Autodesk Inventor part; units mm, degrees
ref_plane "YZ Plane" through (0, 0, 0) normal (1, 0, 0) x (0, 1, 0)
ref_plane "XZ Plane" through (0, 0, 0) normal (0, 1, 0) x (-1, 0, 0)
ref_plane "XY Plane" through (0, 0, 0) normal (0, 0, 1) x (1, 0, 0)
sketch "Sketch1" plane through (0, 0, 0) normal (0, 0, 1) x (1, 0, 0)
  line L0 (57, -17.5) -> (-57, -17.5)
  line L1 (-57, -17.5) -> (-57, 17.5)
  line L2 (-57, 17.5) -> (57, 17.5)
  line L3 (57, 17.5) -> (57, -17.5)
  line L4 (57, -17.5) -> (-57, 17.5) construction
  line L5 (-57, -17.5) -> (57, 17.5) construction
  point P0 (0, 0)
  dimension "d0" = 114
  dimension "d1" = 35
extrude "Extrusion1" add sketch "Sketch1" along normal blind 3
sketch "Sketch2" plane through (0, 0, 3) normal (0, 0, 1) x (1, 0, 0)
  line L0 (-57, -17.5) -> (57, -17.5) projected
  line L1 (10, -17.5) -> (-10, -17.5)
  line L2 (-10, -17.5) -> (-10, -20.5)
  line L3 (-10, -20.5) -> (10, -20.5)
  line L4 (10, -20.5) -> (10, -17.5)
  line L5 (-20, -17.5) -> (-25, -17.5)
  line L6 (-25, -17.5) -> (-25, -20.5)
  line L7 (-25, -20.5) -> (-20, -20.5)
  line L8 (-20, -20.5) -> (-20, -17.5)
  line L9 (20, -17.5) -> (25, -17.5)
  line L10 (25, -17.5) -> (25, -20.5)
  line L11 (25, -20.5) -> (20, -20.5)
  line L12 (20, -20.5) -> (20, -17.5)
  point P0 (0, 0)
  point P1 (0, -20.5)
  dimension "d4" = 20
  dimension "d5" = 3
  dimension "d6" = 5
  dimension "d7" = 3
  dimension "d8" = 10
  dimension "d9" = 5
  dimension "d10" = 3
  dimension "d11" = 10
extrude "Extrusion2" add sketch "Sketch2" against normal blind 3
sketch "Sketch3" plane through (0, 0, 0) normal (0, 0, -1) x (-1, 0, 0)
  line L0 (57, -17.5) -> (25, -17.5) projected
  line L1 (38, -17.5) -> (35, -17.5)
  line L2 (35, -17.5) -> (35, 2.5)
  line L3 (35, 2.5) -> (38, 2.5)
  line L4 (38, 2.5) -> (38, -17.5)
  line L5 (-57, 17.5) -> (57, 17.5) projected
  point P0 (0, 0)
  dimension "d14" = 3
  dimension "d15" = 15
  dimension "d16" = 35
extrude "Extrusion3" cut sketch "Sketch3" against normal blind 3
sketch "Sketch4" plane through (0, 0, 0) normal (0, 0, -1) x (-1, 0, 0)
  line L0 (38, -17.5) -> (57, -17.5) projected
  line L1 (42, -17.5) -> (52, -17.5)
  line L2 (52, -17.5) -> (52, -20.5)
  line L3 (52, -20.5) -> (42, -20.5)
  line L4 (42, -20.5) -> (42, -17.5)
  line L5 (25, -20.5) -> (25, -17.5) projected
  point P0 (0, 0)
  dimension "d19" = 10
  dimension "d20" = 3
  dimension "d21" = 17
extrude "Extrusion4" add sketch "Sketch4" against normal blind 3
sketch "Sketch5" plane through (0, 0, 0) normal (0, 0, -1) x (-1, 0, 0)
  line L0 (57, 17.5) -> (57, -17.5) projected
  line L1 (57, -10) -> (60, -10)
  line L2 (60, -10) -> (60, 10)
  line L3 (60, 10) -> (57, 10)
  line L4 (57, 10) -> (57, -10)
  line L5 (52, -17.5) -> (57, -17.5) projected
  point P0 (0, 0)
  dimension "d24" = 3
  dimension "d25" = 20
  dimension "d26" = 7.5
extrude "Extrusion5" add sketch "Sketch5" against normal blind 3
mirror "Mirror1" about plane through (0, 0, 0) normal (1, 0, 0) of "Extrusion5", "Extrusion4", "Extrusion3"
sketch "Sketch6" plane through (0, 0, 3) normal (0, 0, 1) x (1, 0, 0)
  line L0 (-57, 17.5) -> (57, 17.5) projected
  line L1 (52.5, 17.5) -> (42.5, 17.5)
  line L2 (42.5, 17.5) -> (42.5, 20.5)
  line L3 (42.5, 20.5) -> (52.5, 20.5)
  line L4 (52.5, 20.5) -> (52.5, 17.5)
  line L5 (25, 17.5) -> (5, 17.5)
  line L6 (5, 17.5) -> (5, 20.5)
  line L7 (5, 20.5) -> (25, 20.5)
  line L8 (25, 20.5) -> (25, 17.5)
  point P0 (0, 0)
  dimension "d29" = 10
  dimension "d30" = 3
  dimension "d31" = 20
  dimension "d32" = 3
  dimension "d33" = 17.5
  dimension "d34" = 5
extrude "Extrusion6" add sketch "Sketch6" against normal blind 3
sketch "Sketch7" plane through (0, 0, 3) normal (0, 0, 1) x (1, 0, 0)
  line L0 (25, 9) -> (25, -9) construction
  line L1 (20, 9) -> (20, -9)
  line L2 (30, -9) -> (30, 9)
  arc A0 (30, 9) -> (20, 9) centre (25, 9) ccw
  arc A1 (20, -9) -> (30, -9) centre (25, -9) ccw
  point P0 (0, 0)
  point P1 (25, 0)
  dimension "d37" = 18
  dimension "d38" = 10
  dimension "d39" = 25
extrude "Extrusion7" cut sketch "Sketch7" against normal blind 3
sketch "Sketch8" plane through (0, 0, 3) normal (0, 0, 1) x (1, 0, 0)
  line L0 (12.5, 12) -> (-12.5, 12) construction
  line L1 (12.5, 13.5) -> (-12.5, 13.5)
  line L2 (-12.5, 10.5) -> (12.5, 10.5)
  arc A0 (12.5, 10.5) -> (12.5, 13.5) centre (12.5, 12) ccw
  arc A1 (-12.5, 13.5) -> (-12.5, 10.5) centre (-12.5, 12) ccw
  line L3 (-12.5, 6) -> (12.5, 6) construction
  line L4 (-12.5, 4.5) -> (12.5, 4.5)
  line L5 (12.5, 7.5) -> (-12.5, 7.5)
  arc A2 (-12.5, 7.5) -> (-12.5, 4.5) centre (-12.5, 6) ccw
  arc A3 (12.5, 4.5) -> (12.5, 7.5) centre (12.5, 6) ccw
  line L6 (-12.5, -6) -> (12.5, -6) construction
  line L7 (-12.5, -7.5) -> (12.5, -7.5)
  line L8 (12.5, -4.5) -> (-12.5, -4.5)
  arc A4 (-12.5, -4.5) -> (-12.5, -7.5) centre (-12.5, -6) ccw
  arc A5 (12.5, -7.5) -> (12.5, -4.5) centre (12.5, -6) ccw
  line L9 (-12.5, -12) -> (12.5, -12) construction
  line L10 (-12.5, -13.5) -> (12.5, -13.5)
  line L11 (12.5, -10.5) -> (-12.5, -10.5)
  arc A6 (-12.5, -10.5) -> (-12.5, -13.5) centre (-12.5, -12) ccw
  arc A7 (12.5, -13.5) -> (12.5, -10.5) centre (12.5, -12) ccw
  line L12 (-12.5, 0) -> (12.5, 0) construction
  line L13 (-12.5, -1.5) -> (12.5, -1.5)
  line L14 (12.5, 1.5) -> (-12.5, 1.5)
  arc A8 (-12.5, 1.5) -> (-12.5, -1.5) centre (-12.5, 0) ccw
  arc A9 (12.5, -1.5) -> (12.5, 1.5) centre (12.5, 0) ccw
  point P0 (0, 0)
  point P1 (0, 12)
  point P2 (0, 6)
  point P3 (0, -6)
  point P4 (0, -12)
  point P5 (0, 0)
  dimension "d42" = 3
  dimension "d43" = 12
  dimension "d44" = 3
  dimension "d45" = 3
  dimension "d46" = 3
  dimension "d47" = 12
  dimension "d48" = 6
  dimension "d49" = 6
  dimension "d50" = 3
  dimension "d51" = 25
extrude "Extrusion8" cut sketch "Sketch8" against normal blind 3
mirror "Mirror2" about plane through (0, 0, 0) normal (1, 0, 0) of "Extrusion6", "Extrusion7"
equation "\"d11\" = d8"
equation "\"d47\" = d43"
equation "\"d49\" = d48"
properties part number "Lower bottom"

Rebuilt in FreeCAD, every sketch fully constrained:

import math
import FreeCAD as App
import Part
import Sketcher
from FreeCAD import Vector

doc = App.newDocument("Part")
body = doc.addObject("PartDesign::Body", "Body")

# Sketch on XY plane
sketch1 = body.newObject("Sketcher::SketchObject", "Sketch")
sketch1.AttachmentSupport = (doc.getObject("XY_Plane"), [""])
sketch1.MapMode = "FlatFace"
sketch1.addGeometry([
    Part.LineSegment(Vector(-57, -18, 0), Vector(57, -18, 0)),
    Part.LineSegment(Vector(57, -18, 0), Vector(57, 18, 0)),
    Part.LineSegment(Vector(57, 18, 0), Vector(-57, 18, 0)),
    Part.LineSegment(Vector(-57, 18, 0), Vector(-57, -18, 0)),
], False)
sketch1.addConstraint([
    Sketcher.Constraint("Coincident", 0, 2, 1, 1),
    Sketcher.Constraint("Coincident", 1, 2, 2, 1),
    Sketcher.Constraint("Coincident", 2, 2, 3, 1),
    Sketcher.Constraint("Coincident", 3, 2, 0, 1),
    Sketcher.Constraint("Horizontal", 0),
    Sketcher.Constraint("Vertical", 1),
    Sketcher.Constraint("Horizontal", 2),
    Sketcher.Constraint("Vertical", 3),
    Sketcher.Constraint("Symmetric", 0, 2, 2, 2, -1, 1),
    Sketcher.Constraint("DistanceX", 0, 1, 0, 2, 114.0),
    Sketcher.Constraint("DistanceY", 1, 1, 1, 2, 35.0),
])
pad1 = body.newObject("PartDesign::Pad", "Pad")
pad1.Profile = sketch1
pad1.Length = 3

# Sketch on XY plane
sketch2 = body.newObject("Sketcher::SketchObject", "Sketch001")
sketch2.AttachmentSupport = (doc.getObject("XY_Plane"), [""])
sketch2.MapMode = "FlatFace"
sketch2.AttachmentOffset = App.Placement(Vector(0, 0, 3), App.Rotation())
sketch2.addGeometry([
    Part.LineSegment(Vector(25, -17.5, 0), Vector(20, -17.5, 0)),  # 0
    Part.LineSegment(Vector(20, -17.5, 0), Vector(20, -20.5, 0)),  # 1
    Part.LineSegment(Vector(20, -20.5, 0), Vector(25, -20.5, 0)),  # 2
    Part.LineSegment(Vector(25, -20.5, 0), Vector(25, -17.5, 0)),  # 3
    Part.LineSegment(Vector(10, -17.5, 0), Vector(-10, -17.5, 0)),  # 4
    Part.LineSegment(Vector(-10, -17.5, 0), Vector(-10, -20.5, 0)),  # 5
    Part.LineSegment(Vector(-10, -20.5, 0), Vector(10, -20.5, 0)),  # 6
    Part.LineSegment(Vector(10, -20.5, 0), Vector(10, -17.5, 0)),  # 7
    Part.LineSegment(Vector(-20, -17.5, 0), Vector(-25, -17.5, 0)),  # 8
    Part.LineSegment(Vector(-25, -17.5, 0), Vector(-25, -20.5, 0)),  # 9
    Part.LineSegment(Vector(-25, -20.5, 0), Vector(-20, -20.5, 0)),  # 10
    Part.LineSegment(Vector(-20, -20.5, 0), Vector(-20, -17.5, 0)),  # 11
], False)
sketch2.addConstraint([
    Sketcher.Constraint("Coincident", 0, 2, 1, 1),
    Sketcher.Constraint("Coincident", 1, 2, 2, 1),
    Sketcher.Constraint("Coincident", 2, 2, 3, 1),
    Sketcher.Constraint("Coincident", 3, 2, 0, 1),
    Sketcher.Constraint("Coincident", 4, 2, 5, 1),
    Sketcher.Constraint("Coincident", 5, 2, 6, 1),
    Sketcher.Constraint("Coincident", 6, 2, 7, 1),
    Sketcher.Constraint("Coincident", 7, 2, 4, 1),
    Sketcher.Constraint("Coincident", 8, 2, 9, 1),
    Sketcher.Constraint("Coincident", 9, 2, 10, 1),
    Sketcher.Constraint("Coincident", 10, 2, 11, 1),
    Sketcher.Constraint("Coincident", 11, 2, 8, 1),
    Sketcher.Constraint("Horizontal", 0),
    Sketcher.Constraint("Vertical", 1),
    Sketcher.Constraint("Horizontal", 2),
    Sketcher.Constraint("Vertical", 3),
    Sketcher.Constraint("Horizontal", 4),
    Sketcher.Constraint("Vertical", 5),
    Sketcher.Constraint("Horizontal", 6),
    Sketcher.Constraint("Vertical", 7),
    Sketcher.Constraint("Horizontal", 8),
    Sketcher.Constraint("Vertical", 9),
    Sketcher.Constraint("Horizontal", 10),
    Sketcher.Constraint("Vertical", 11),
    Sketcher.Constraint("Symmetric", 3, 2, 8, 2, -2),
    Sketcher.Constraint("Symmetric", 1, 2, 10, 2, -2),
    Sketcher.Constraint("Horizontal", 3, 2, 4, 2),
    Sketcher.Constraint("Horizontal", 2, 2, 5, 2),
    Sketcher.Constraint("DistanceX", 0, 2, 0, 1, 5.0),
    Sketcher.Constraint("DistanceX", 4, 2, 4, 1, 20.0),
    Sketcher.Constraint("DistanceY", 1, 2, 1, 1, 3.0),
    Sketcher.Constraint("DistanceX", -1, 1, 0, 2, 20.0),
    Sketcher.Constraint("DistanceX", 4, 2, -1, 1, 10.0),
    Sketcher.Constraint("DistanceY", 0, 2, -1, 1, 17.5),
])
pad2 = body.newObject("PartDesign::Pad", "Pad001")
pad2.Profile = sketch2
pad2.Length = 3
pad2.Reversed = True

# Sketch on XY plane
sketch3 = body.newObject("Sketcher::SketchObject", "Sketch002")
sketch3.AttachmentSupport = (doc.getObject("XY_Plane"), [""])
sketch3.MapMode = "FlatFace"
sketch3.addGeometry([
    Part.LineSegment(Vector(-35, -17.5, 0), Vector(-38, -17.5, 0)),
    Part.LineSegment(Vector(-38, -17.5, 0), Vector(-38, 2.5, 0)),
    Part.LineSegment(Vector(-38, 2.5, 0), Vector(-35, 2.5, 0)),
    Part.LineSegment(Vector(-35, 2.5, 0), Vector(-35, -17.5, 0)),
], False)
sketch3.addConstraint([
    Sketcher.Constraint("Coincident", 0, 2, 1, 1),
    Sketcher.Constraint("Coincident", 1, 2, 2, 1),
    Sketcher.Constraint("Coincident", 2, 2, 3, 1),
    Sketcher.Constraint("Coincident", 3, 2, 0, 1),
    Sketcher.Constraint("Horizontal", 0),
    Sketcher.Constraint("Vertical", 1),
    Sketcher.Constraint("Horizontal", 2),
    Sketcher.Constraint("Vertical", 3),
    Sketcher.Constraint("DistanceX", 0, 2, 0, 1, 3.0),
    Sketcher.Constraint("DistanceX", 2, 2, -1, 1, 35.0),
    Sketcher.Constraint("DistanceY", 1, 1, 1, 2, 20.0),
    Sketcher.Constraint("DistanceY", 0, 2, -1, 1, 17.5),
])
pocket1 = body.newObject("PartDesign::Pocket", "Pocket")
pocket1.Profile = sketch3
pocket1.Length = 3
pocket1.Reversed = True

# Sketch on XY plane
sketch4 = body.newObject("Sketcher::SketchObject", "Sketch003")
sketch4.AttachmentSupport = (doc.getObject("XY_Plane"), [""])
sketch4.MapMode = "FlatFace"
sketch4.addGeometry([
    Part.LineSegment(Vector(-52, -17.5, 0), Vector(-42, -17.5, 0)),
    Part.LineSegment(Vector(-42, -17.5, 0), Vector(-42, -20.5, 0)),
    Part.LineSegment(Vector(-42, -20.5, 0), Vector(-52, -20.5, 0)),
    Part.LineSegment(Vector(-52, -20.5, 0), Vector(-52, -17.5, 0)),
], False)
sketch4.addConstraint([
    Sketcher.Constraint("Coincident", 0, 2, 1, 1),
    Sketcher.Constraint("Coincident", 1, 2, 2, 1),
    Sketcher.Constraint("Coincident", 2, 2, 3, 1),
    Sketcher.Constraint("Coincident", 3, 2, 0, 1),
    Sketcher.Constraint("Horizontal", 0),
    Sketcher.Constraint("Vertical", 1),
    Sketcher.Constraint("Horizontal", 2),
    Sketcher.Constraint("Vertical", 3),
    Sketcher.Constraint("DistanceX", 0, 1, 0, 2, 10.0),
    Sketcher.Constraint("DistanceY", 1, 2, 1, 1, 3.0),
    Sketcher.Constraint("DistanceX", 0, 2, -1, 1, 42.0),
    Sketcher.Constraint("DistanceY", 0, 2, -1, 1, 17.5),
])
pad3 = body.newObject("PartDesign::Pad", "Pad002")
pad3.Profile = sketch4
pad3.Length = 3

# Sketch on XY plane
sketch5 = body.newObject("Sketcher::SketchObject", "Sketch004")
sketch5.AttachmentSupport = (doc.getObject("XY_Plane"), [""])
sketch5.MapMode = "FlatFace"
sketch5.addGeometry([
    Part.LineSegment(Vector(-60, 10, 0), Vector(-57, 10, 0)),
    Part.LineSegment(Vector(-57, 10, 0), Vector(-57, -10, 0)),
    Part.LineSegment(Vector(-57, -10, 0), Vector(-60, -10, 0)),
    Part.LineSegment(Vector(-60, -10, 0), Vector(-60, 10, 0)),
], False)
sketch5.addConstraint([
    Sketcher.Constraint("Coincident", 0, 2, 1, 1),
    Sketcher.Constraint("Coincident", 1, 2, 2, 1),
    Sketcher.Constraint("Coincident", 2, 2, 3, 1),
    Sketcher.Constraint("Coincident", 3, 2, 0, 1),
    Sketcher.Constraint("Horizontal", 0),
    Sketcher.Constraint("Vertical", 1),
    Sketcher.Constraint("Horizontal", 2),
    Sketcher.Constraint("Vertical", 3),
    Sketcher.Constraint("DistanceX", 0, 1, 0, 2, 3.0),
    Sketcher.Constraint("DistanceY", 1, 2, 1, 1, 20.0),
    Sketcher.Constraint("DistanceX", 0, 2, -1, 1, 57.0),
    Sketcher.Constraint("DistanceY", -1, 1, 0, 2, 10.0),
])
pad4 = body.newObject("PartDesign::Pad", "Pad003")
pad4.Profile = sketch5
pad4.Length = 3
doc.recompute()

mirrored = body.newObject("PartDesign::Mirrored", "Mirrored")
mirrored.Originals = [pad4, pad3, pocket1]
mirrored.MirrorPlane = (doc.getObject("YZ_Plane"), [""])
body.Tip = mirrored

# Sketch on XY plane
sketch6 = body.newObject("Sketcher::SketchObject", "Sketch005")
sketch6.AttachmentSupport = (doc.getObject("XY_Plane"), [""])
sketch6.MapMode = "FlatFace"
sketch6.AttachmentOffset = App.Placement(Vector(0, 0, 3), App.Rotation())
sketch6.addGeometry([
    Part.LineSegment(Vector(5, 20.5, 0), Vector(5, 17.5, 0)),  # 0
    Part.LineSegment(Vector(5, 17.5, 0), Vector(25, 17.5, 0)),  # 1
    Part.LineSegment(Vector(25, 17.5, 0), Vector(25, 20.5, 0)),  # 2
    Part.LineSegment(Vector(25, 20.5, 0), Vector(5, 20.5, 0)),  # 3
    Part.LineSegment(Vector(42.5, 20.5, 0), Vector(42.5, 17.5, 0)),  # 4
    Part.LineSegment(Vector(42.5, 17.5, 0), Vector(52.5, 17.5, 0)),  # 5
    Part.LineSegment(Vector(52.5, 17.5, 0), Vector(52.5, 20.5, 0)),  # 6
    Part.LineSegment(Vector(52.5, 20.5, 0), Vector(42.5, 20.5, 0)),  # 7
], False)
sketch6.addConstraint([
    Sketcher.Constraint("Coincident", 0, 2, 1, 1),
    Sketcher.Constraint("Coincident", 1, 2, 2, 1),
    Sketcher.Constraint("Coincident", 2, 2, 3, 1),
    Sketcher.Constraint("Coincident", 3, 2, 0, 1),
    Sketcher.Constraint("Coincident", 4, 2, 5, 1),
    Sketcher.Constraint("Coincident", 5, 2, 6, 1),
    Sketcher.Constraint("Coincident", 6, 2, 7, 1),
    Sketcher.Constraint("Coincident", 7, 2, 4, 1),
    Sketcher.Constraint("Vertical", 0),
    Sketcher.Constraint("Horizontal", 1),
    Sketcher.Constraint("Vertical", 2),
    Sketcher.Constraint("Horizontal", 3),
    Sketcher.Constraint("Vertical", 4),
    Sketcher.Constraint("Horizontal", 5),
    Sketcher.Constraint("Vertical", 6),
    Sketcher.Constraint("Horizontal", 7),
    Sketcher.Constraint("Horizontal", 1, 2, 4, 2),
    Sketcher.Constraint("Horizontal", 3, 2, 6, 2),
    Sketcher.Constraint("DistanceX", 1, 1, 1, 2, 20.0),
    Sketcher.Constraint("DistanceX", 5, 1, 5, 2, 10.0),
    Sketcher.Constraint("DistanceY", 0, 2, 0, 1, 3.0),
    Sketcher.Constraint("DistanceX", -1, 1, 0, 2, 5.0),
    Sketcher.Constraint("DistanceY", -1, 1, 0, 2, 17.5),
    Sketcher.Constraint("DistanceX", 1, 2, 4, 2, 17.5),
])
pad5 = body.newObject("PartDesign::Pad", "Pad004")
pad5.Profile = sketch6
pad5.Length = 3
pad5.Reversed = True

# Sketch on XY plane
sketch7 = body.newObject("Sketcher::SketchObject", "Sketch006")
sketch7.AttachmentSupport = (doc.getObject("XY_Plane"), [""])
sketch7.MapMode = "FlatFace"
sketch7.AttachmentOffset = App.Placement(Vector(0, 0, 3), App.Rotation())
sketch7.addGeometry([
    Part.ArcOfCircle(Part.Circle(Vector(25, 9, 0), Vector(0, 0, 1), 5), math.radians(0), math.radians(180)),
    Part.LineSegment(Vector(20, 9, 0), Vector(20, -9, 0)),
    Part.ArcOfCircle(Part.Circle(Vector(25, -9, 0), Vector(0, 0, 1), 5), math.radians(180), math.radians(360)),
    Part.LineSegment(Vector(30, -9, 0), Vector(30, 9, 0)),
], False)
sketch7.addConstraint([
    Sketcher.Constraint("Tangent", 0, 2, 1, 1),
    Sketcher.Constraint("Tangent", 1, 2, 2, 1),
    Sketcher.Constraint("Tangent", 2, 2, 3, 1),
    Sketcher.Constraint("Tangent", 3, 2, 0, 1),
    Sketcher.Constraint("Vertical", 1),
    Sketcher.Constraint("Vertical", 3),
    Sketcher.Constraint("Radius", 0, 5.0),
    Sketcher.Constraint("DistanceY", 1, 2, 1, 1, 18.0),
    Sketcher.Constraint("DistanceX", -1, 1, 0, 3, 25.0),
    Sketcher.Constraint("DistanceY", -1, 1, 0, 3, 9.0),
])
pocket2 = body.newObject("PartDesign::Pocket", "Pocket001")
pocket2.Profile = sketch7
pocket2.Length = 3

# Sketch on XY plane
sketch8 = body.newObject("Sketcher::SketchObject", "Sketch007")
sketch8.AttachmentSupport = (doc.getObject("XY_Plane"), [""])
sketch8.MapMode = "FlatFace"
sketch8.AttachmentOffset = App.Placement(Vector(0, 0, 3), App.Rotation())
sketch8.addGeometry([
    Part.ArcOfCircle(Part.Circle(Vector(12.5, 12, 0), Vector(0, 0, 1), 1.5), math.radians(-90), math.radians(90)),  # 0
    Part.LineSegment(Vector(12.5, 13.5, 0), Vector(-12.5, 13.5, 0)),  # 1
    Part.ArcOfCircle(Part.Circle(Vector(-12.5, 12, 0), Vector(0, 0, 1), 1.5), math.radians(90), math.radians(270)),  # 2
    Part.LineSegment(Vector(-12.5, 10.5, 0), Vector(12.5, 10.5, 0)),  # 3
    Part.ArcOfCircle(Part.Circle(Vector(-12.5, 6, 0), Vector(0, 0, 1), 1.5), math.radians(90), math.radians(270)),  # 4
    Part.LineSegment(Vector(-12.5, 4.5, 0), Vector(12.5, 4.5, 0)),  # 5
    Part.ArcOfCircle(Part.Circle(Vector(12.5, 6, 0), Vector(0, 0, 1), 1.5), math.radians(-90), math.radians(90)),  # 6
    Part.LineSegment(Vector(12.5, 7.5, 0), Vector(-12.5, 7.5, 0)),  # 7
    Part.ArcOfCircle(Part.Circle(Vector(-12.5, -6, 0), Vector(0, 0, 1), 1.5), math.radians(90), math.radians(270)),  # 8
    Part.LineSegment(Vector(-12.5, -7.5, 0), Vector(12.5, -7.5, 0)),  # 9
    Part.ArcOfCircle(Part.Circle(Vector(12.5, -6, 0), Vector(0, 0, 1), 1.5), math.radians(-90), math.radians(90)),  # 10
    Part.LineSegment(Vector(12.5, -4.5, 0), Vector(-12.5, -4.5, 0)),  # 11
    Part.ArcOfCircle(Part.Circle(Vector(-12.5, -12, 0), Vector(0, 0, 1), 1.5), math.radians(90), math.radians(270)),  # 12
    Part.LineSegment(Vector(-12.5, -13.5, 0), Vector(12.5, -13.5, 0)),  # 13
    Part.ArcOfCircle(Part.Circle(Vector(12.5, -12, 0), Vector(0, 0, 1), 1.5), math.radians(-90), math.radians(90)),  # 14
    Part.LineSegment(Vector(12.5, -10.5, 0), Vector(-12.5, -10.5, 0)),  # 15
    Part.ArcOfCircle(Part.Circle(Vector(-12.5, 0, 0), Vector(0, 0, 1), 1.5), math.radians(90), math.radians(270)),  # 16
    Part.LineSegment(Vector(-12.5, -1.5, 0), Vector(12.5, -1.5, 0)),  # 17
    Part.ArcOfCircle(Part.Circle(Vector(12.5, 0, 0), Vector(0, 0, 1), 1.5), math.radians(-90), math.radians(90)),  # 18
    Part.LineSegment(Vector(12.5, 1.5, 0), Vector(-12.5, 1.5, 0)),  # 19
], False)
sketch8.addConstraint([
    Sketcher.Constraint("Tangent", 0, 2, 1, 1),
    Sketcher.Constraint("Tangent", 1, 2, 2, 1),
    Sketcher.Constraint("Tangent", 2, 2, 3, 1),
    Sketcher.Constraint("Tangent", 3, 2, 0, 1),
    Sketcher.Constraint("Tangent", 4, 2, 5, 1),
    Sketcher.Constraint("Tangent", 5, 2, 6, 1),
    Sketcher.Constraint("Tangent", 6, 2, 7, 1),
    Sketcher.Constraint("Tangent", 7, 2, 4, 1),
    Sketcher.Constraint("Tangent", 8, 2, 9, 1),
    Sketcher.Constraint("Tangent", 9, 2, 10, 1),
    Sketcher.Constraint("Tangent", 10, 2, 11, 1),
    Sketcher.Constraint("Tangent", 11, 2, 8, 1),
    Sketcher.Constraint("Tangent", 12, 2, 13, 1),
    Sketcher.Constraint("Tangent", 13, 2, 14, 1),
    Sketcher.Constraint("Tangent", 14, 2, 15, 1),
    Sketcher.Constraint("Tangent", 15, 2, 12, 1),
    Sketcher.Constraint("Tangent", 16, 2, 17, 1),
    Sketcher.Constraint("Tangent", 17, 2, 18, 1),
    Sketcher.Constraint("Tangent", 18, 2, 19, 1),
    Sketcher.Constraint("Tangent", 19, 2, 16, 1),
    Sketcher.Constraint("Horizontal", 1),
    Sketcher.Constraint("Horizontal", 3),
    Sketcher.Constraint("Horizontal", 5),
    Sketcher.Constraint("Horizontal", 7),
    Sketcher.Constraint("Horizontal", 9),
    Sketcher.Constraint("Horizontal", 11),
    Sketcher.Constraint("Horizontal", 13),
    Sketcher.Constraint("Horizontal", 15),
    Sketcher.Constraint("Horizontal", 17),
    Sketcher.Constraint("Horizontal", 19),
    Sketcher.Constraint("Equal", 2, 4),
    Sketcher.Constraint("Equal", 6, 8),
    Sketcher.Constraint("Equal", 10, 12),
    Sketcher.Constraint("Equal", 14, 16),
    Sketcher.Constraint("Symmetric", 6, 3, 8, 3, -1, 1),
    Sketcher.Constraint("Symmetric", 0, 3, 12, 3, -1, 1),
    Sketcher.Constraint("Symmetric", 16, 3, 18, 3, -1, 1),
    Sketcher.Constraint("Vertical", 2, 3, 4, 3),
    Sketcher.Constraint("Vertical", 0, 3, 6, 3),
    Sketcher.Constraint("Vertical", 4, 3, 8, 3),
    Sketcher.Constraint("Vertical", 6, 3, 10, 3),
    Sketcher.Constraint("Vertical", 10, 3, 14, 3),
    Sketcher.Constraint("Vertical", 12, 3, 16, 3),
    Sketcher.Constraint("Radius", 0, 1.5),
    Sketcher.Constraint("DistanceX", 1, 2, 1, 1, 25.0),
    Sketcher.Constraint("DistanceY", -1, 1, 0, 3, 12.0),
    Sketcher.Constraint("DistanceY", -1, 1, 4, 3, 6.0),
])
pocket3 = body.newObject("PartDesign::Pocket", "Pocket002")
pocket3.Profile = sketch8
pocket3.Length = 3
doc.recompute()

mirrored2 = body.newObject("PartDesign::Mirrored", "Mirrored001")
mirrored2.Originals = [pad5, pocket2]
mirrored2.MirrorPlane = (doc.getObject("YZ_Plane"), [""])
body.Tip = mirrored2

doc.recompute()
